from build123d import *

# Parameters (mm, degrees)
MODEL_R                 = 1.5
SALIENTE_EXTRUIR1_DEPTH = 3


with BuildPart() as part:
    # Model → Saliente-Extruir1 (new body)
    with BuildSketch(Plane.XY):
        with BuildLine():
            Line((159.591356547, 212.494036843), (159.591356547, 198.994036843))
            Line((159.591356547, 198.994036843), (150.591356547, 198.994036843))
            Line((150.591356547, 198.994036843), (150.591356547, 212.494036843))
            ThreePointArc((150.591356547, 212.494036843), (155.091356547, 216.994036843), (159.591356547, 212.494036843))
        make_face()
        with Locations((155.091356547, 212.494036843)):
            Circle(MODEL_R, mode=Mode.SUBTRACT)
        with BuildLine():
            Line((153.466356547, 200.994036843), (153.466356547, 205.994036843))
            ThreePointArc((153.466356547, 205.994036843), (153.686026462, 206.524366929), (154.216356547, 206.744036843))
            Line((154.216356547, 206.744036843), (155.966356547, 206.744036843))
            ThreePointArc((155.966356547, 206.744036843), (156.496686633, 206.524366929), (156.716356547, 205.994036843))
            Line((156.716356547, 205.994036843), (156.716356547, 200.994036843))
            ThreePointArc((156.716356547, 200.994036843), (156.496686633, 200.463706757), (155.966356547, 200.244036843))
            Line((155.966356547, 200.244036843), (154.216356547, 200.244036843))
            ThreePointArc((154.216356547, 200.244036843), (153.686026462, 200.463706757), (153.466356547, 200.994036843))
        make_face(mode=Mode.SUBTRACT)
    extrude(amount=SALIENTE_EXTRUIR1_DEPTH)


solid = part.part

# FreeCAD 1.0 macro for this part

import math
import FreeCAD as App
import Part
import Sketcher
Q = App.Units.Quantity

doc = App.newDocument("Part")
body = doc.addObject("PartDesign::Body", "Body")

# Sketch on XY plane
sketch1 = body.newObject("Sketcher::SketchObject", "Sketch")
sketch1.AttachmentSupport = (doc.getObject("XY_Plane"), [""])
sketch1.MapMode = "FlatFace"
sketch1.addGeometry([
    Part.LineSegment(App.Vector(159.6, 199, 0), App.Vector(159.6, 212.5, 0)),  # 0
    Part.ArcOfCircle(Part.Circle(App.Vector(155.1, 212.5, 0), App.Vector(0, 0, 1), 4.5), math.radians(0), math.radians(180)),  # 1
    Part.LineSegment(App.Vector(150.6, 212.5, 0), App.Vector(150.6, 199, 0)),  # 2
    Part.LineSegment(App.Vector(150.6, 199, 0), App.Vector(159.6, 199, 0)),  # 3
    Part.LineSegment(App.Vector(153.5, 201, 0), App.Vector(153.5, 206, 0)),  # 4
    Part.ArcOfCircle(Part.Circle(App.Vector(154.2, 206, 0), App.Vector(0, 0, 1), 0.8), math.radians(90), math.radians(180)),  # 5
    Part.LineSegment(App.Vector(154.2, 206.7, 0), App.Vector(156, 206.7, 0)),  # 6
    Part.ArcOfCircle(Part.Circle(App.Vector(156, 206, 0), App.Vector(0, 0, 1), 0.8), math.radians(0), math.radians(90)),  # 7
    Part.LineSegment(App.Vector(156.7, 206, 0), App.Vector(156.7, 201, 0)),  # 8
    Part.ArcOfCircle(Part.Circle(App.Vector(156, 201, 0), App.Vector(0, 0, 1), 0.8), math.radians(-90), math.radians(0)),  # 9
    Part.LineSegment(App.Vector(156, 200.2, 0), App.Vector(154.2, 200.2, 0)),  # 10
    Part.ArcOfCircle(Part.Circle(App.Vector(154.2, 201, 0), App.Vector(0, 0, 1), 0.8), math.radians(-180), math.radians(-90)),  # 11
    Part.Circle(App.Vector(155.1, 212.5, 0), App.Vector(0, 0, 1), 1.5),  # 12
], False)
sketch1.addConstraint([
    Sketcher.Constraint("Tangent", 0, 2, 1, 1),
    Sketcher.Constraint("Tangent", 1, 2, 2, 1),
    Sketcher.Constraint("Coincident", 2, 2, 3, 1),
    Sketcher.Constraint("Coincident", 3, 2, 0, 1),
    Sketcher.Constraint("Tangent", 4, 2, 5, 2),
    Sketcher.Constraint("Tangent", 5, 1, 6, 1),
    Sketcher.Constraint("Tangent", 6, 2, 7, 2),
    Sketcher.Constraint("Tangent", 7, 1, 8, 1),
    Sketcher.Constraint("Tangent", 8, 2, 9, 2),
    Sketcher.Constraint("Tangent", 9, 1, 10, 1),
    Sketcher.Constraint("Tangent", 10, 2, 11, 2),
    Sketcher.Constraint("Tangent", 11, 1, 4, 1),
    Sketcher.Constraint("Vertical", 0),
    Sketcher.Constraint("Vertical", 2),
    Sketcher.Constraint("Horizontal", 3),
    Sketcher.Constraint("Vertical", 4),
    Sketcher.Constraint("Horizontal", 6),
    Sketcher.Constraint("Vertical", 8),
    Sketcher.Constraint("Horizontal", 10),
    Sketcher.Constraint("Coincident", 12, 3, 1, 3),
    Sketcher.Constraint("Equal", 5, 7),
    Sketcher.Constraint("Equal", 7, 9),
    Sketcher.Constraint("Equal", 9, 11),
    Sketcher.Constraint("Diameter", 12, Q("3 mm")),
    Sketcher.Constraint("Radius", 1, Q("4.5 mm")),
    Sketcher.Constraint("DistanceY", 4, 1, 4, 2, Q("5 mm")),
    Sketcher.Constraint("Radius", 5, Q("0.75 mm")),
    Sketcher.Constraint("DistanceY", 0, 1, 0, 2, Q("13.5 mm")),
    Sketcher.Constraint("DistanceY", 2, 2, 11, 3, Q("2 mm")),
    Sketcher.Constraint("DistanceX", 6, 1, 6, 2, Q("1.75 mm")),
    Sketcher.Constraint("DistanceX", 5, 3, 1, 3, Q("0.875 mm")),
    Sketcher.Constraint("DistanceX", -1, 1, 1, 3, Q("155.091357 mm")),
    Sketcher.Constraint("DistanceY", -1, 1, 1, 3, Q("212.494037 mm")),
])
pad1 = body.newObject("PartDesign::Pad", "Pad")
pad1.Profile = sketch1
pad1.Length = 3

doc.recompute()
